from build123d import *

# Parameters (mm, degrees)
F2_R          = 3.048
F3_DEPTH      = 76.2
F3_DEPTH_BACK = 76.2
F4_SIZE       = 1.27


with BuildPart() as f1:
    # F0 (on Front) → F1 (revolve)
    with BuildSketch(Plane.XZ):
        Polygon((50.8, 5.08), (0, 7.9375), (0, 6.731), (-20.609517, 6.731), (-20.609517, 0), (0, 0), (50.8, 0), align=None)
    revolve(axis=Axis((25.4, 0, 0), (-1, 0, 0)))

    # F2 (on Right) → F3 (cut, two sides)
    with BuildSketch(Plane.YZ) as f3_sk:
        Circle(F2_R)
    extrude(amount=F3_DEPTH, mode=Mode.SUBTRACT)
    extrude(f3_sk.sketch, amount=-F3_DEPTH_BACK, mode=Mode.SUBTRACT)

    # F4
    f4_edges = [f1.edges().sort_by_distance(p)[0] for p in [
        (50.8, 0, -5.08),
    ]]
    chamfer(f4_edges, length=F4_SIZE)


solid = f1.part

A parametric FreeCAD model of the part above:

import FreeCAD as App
import Part
import Sketcher
Q = App.Units.Quantity


def edges_at(feature, points):
    """Names of the edges that pass closest to the given points."""
    edges = feature.Shape.Edges
    near = lambda p: min(range(len(edges)), key=lambda i: edges[i].distToShape(Part.Vertex(*p))[0])
    return sorted({f"Edge{near(p) + 1}" for p in points})

doc = App.newDocument("Part")
body = doc.addObject("PartDesign::Body", "Body")

# Sketch on XZ plane
sketch1 = body.newObject("Sketcher::SketchObject", "Sketch")
sketch1.AttachmentSupport = (doc.getObject("XZ_Plane"), [""])
sketch1.MapMode = "FlatFace"
sketch1.addGeometry([
    Part.LineSegment(App.Vector(50.8, 5.08, 0), App.Vector(0, 7.9375, 0)),  # 0
    Part.LineSegment(App.Vector(0, 7.9375, 0), App.Vector(0, 6.731, 0)),  # 1
    Part.LineSegment(App.Vector(0, 6.731, 0), App.Vector(-20.609517, 6.731, 0)),  # 2
    Part.LineSegment(App.Vector(-20.609517, 6.731, 0), App.Vector(-20.609517, 0, 0)),  # 3
    Part.LineSegment(App.Vector(-20.609517, 0, 0), App.Vector(50.8, 0, 0)),  # 4
    Part.LineSegment(App.Vector(50.8, 0, 0), App.Vector(50.8, 5.08, 0)),  # 5
], False)
sketch1.addConstraint([
    Sketcher.Constraint("Coincident", 0, 2, 1, 1),
    Sketcher.Constraint("Coincident", 1, 2, 2, 1),
    Sketcher.Constraint("Coincident", 2, 2, 3, 1),
    Sketcher.Constraint("Coincident", 3, 2, 4, 1),
    Sketcher.Constraint("Coincident", 4, 2, 5, 1),
    Sketcher.Constraint("Coincident", 5, 2, 0, 1),
    Sketcher.Constraint("Vertical", 1),
    Sketcher.Constraint("Horizontal", 2),
    Sketcher.Constraint("Vertical", 3),
    Sketcher.Constraint("Horizontal", 4),
    Sketcher.Constraint("Vertical", 5),
    Sketcher.Constraint("PointOnObject", 0, 2, -2),
    Sketcher.Constraint("PointOnObject", 3, 2, -1),
    Sketcher.Constraint("DistanceY", 5, 1, 5, 2, Q("0.2 in")),
    Sketcher.Constraint("DistanceX", -1, 1, 4, 2, Q("2 in")),
    Sketcher.Constraint("DistanceY", 3, 2, 3, 1, Q("0.265 in")),
    Sketcher.Constraint("DistanceY", 1, 2, 1, 1, Q("0.0475 in")),
    Sketcher.Constraint("DistanceX", 2, 2, 2, 1, 20.609517),
])
revolution = body.newObject("PartDesign::Revolution", "Revolution")
revolution.Profile = sketch1
revolution.ReferenceAxis = (sketch1, ["H_Axis"])
revolution.Angle = 360

# Sketch on YZ plane
sketch2 = body.newObject("Sketcher::SketchObject", "Sketch001")
sketch2.AttachmentSupport = (doc.getObject("YZ_Plane"), [""])
sketch2.MapMode = "FlatFace"
sketch2.addGeometry(Part.Circle(App.Vector(0, 0, 0), App.Vector(0, 0, 1), 3.048), False)
sketch2.addConstraint([
    Sketcher.Constraint("Coincident", 0, 3, -1, 1),
    Sketcher.Constraint("Diameter", 0, Q("0.24 in")),
])
pocket1 = body.newObject("PartDesign::Pocket", "Pocket")
pocket1.Profile = sketch2
pocket1.Type = "ThroughAll"
pocket1.Midplane = True
doc.recompute()

chamfer = body.newObject("PartDesign::Chamfer", "Chamfer")
chamfer.Base = (pocket1, edges_at(pocket1, [(50.8, 0, -5.08)]))
chamfer.Size = Q("0.05 in")

doc.recompute()
